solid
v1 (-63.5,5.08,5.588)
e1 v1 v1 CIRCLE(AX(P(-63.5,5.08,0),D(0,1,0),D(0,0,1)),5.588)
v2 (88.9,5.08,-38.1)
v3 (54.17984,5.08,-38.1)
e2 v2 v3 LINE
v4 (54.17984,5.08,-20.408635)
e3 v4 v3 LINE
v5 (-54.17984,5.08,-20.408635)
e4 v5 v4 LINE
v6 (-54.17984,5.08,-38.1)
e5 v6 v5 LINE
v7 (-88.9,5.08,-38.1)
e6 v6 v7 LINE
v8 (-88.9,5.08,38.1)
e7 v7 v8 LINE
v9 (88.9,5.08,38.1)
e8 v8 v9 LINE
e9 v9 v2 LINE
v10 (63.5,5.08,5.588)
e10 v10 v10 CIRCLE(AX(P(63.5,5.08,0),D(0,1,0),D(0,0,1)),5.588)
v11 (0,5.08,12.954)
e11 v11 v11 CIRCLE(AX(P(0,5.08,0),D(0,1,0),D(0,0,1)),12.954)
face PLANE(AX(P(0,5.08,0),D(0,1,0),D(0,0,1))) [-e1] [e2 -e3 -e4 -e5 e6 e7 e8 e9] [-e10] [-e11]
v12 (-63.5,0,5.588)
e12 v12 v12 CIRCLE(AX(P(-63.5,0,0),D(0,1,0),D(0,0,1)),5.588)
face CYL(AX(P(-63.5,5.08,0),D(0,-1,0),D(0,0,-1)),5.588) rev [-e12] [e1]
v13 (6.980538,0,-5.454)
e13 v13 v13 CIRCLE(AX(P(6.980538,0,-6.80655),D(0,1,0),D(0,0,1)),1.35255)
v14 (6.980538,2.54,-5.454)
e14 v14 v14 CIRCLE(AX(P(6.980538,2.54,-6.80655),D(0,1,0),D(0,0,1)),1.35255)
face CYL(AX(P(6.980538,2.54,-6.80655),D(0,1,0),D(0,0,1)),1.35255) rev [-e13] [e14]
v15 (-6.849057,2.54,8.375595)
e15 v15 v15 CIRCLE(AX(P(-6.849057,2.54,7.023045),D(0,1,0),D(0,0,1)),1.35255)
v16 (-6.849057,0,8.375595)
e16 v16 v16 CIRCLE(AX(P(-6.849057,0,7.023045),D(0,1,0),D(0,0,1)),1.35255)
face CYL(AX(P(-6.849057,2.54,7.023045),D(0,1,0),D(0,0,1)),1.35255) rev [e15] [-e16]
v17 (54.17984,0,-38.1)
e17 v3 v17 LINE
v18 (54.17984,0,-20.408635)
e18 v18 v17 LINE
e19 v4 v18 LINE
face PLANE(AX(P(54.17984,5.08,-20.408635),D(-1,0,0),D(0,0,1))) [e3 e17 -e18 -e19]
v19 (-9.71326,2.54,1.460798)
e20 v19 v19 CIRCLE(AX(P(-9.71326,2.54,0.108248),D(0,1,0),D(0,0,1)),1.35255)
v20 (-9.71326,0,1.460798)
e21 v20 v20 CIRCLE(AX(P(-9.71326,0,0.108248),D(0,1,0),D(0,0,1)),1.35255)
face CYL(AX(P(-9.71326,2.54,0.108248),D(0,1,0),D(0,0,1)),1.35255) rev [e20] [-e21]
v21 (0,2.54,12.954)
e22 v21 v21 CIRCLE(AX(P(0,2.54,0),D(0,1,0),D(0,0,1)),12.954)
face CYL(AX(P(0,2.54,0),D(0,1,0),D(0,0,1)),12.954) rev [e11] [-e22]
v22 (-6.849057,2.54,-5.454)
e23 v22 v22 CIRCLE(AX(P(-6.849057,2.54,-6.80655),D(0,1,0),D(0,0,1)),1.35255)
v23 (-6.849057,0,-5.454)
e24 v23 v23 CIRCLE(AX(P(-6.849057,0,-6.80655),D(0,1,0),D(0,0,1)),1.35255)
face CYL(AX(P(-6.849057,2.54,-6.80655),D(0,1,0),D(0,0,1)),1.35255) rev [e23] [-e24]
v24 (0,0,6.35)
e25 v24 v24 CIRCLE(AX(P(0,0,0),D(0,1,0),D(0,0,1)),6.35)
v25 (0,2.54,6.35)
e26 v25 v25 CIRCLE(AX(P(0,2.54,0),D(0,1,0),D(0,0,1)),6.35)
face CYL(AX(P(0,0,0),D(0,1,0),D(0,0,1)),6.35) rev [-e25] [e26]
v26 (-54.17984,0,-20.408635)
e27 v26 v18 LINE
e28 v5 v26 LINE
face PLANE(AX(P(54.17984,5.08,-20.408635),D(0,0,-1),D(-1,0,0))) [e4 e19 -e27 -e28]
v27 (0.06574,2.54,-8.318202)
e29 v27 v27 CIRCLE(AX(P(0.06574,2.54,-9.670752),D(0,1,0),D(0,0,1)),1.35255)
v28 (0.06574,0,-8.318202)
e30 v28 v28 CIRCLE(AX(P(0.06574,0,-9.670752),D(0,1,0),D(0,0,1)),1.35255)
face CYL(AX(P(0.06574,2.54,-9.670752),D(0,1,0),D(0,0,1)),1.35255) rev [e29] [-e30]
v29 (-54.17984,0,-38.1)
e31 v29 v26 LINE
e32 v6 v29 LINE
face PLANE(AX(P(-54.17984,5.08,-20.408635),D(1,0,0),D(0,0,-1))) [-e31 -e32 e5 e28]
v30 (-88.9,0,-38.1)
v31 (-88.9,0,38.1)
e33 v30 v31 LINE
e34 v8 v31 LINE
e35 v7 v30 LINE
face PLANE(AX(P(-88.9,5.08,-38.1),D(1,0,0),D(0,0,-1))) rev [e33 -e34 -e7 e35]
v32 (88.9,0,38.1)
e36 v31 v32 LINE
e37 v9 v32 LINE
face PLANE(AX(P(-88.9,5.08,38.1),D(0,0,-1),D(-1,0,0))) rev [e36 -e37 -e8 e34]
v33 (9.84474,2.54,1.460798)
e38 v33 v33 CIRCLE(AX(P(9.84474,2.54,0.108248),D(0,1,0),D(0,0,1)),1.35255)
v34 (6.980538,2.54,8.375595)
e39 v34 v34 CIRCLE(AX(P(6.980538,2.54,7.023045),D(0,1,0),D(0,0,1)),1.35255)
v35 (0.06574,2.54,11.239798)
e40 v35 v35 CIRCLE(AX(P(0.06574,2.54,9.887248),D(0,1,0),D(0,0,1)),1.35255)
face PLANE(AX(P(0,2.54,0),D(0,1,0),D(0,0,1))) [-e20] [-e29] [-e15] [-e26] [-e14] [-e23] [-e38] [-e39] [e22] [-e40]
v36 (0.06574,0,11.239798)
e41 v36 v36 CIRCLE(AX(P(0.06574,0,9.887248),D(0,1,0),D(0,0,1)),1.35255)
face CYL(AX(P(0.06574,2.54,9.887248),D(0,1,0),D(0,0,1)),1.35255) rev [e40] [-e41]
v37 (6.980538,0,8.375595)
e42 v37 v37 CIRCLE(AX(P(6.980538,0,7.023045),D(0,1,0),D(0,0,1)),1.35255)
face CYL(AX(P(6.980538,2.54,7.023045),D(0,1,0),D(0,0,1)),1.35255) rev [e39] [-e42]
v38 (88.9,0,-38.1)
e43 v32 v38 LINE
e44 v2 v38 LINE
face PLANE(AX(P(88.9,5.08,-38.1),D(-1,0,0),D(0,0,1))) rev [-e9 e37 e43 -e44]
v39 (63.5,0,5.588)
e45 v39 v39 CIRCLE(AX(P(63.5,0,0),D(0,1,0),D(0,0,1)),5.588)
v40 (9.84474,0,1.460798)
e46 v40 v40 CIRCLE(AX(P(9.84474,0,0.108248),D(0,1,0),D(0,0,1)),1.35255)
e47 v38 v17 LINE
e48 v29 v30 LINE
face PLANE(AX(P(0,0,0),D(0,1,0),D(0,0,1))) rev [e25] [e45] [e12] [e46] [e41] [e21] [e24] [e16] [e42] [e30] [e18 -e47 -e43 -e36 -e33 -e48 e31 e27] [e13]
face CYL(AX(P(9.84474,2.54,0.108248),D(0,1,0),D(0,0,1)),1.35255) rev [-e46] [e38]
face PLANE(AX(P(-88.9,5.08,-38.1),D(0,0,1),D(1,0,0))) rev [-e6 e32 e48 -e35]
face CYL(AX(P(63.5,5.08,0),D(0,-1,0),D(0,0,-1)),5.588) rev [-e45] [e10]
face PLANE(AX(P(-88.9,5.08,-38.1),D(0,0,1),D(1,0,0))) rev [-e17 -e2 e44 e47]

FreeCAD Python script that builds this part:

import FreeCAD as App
import Part
import Sketcher
Q = App.Units.Quantity


def add_polygon(sketch, points):
    """Adds a closed chain of lines whose ends are joined by coincident constraints."""
    first, n = sketch.GeometryCount, len(points)
    for a, b in zip(points, points[1:] + points[:1]):
        sketch.addGeometry(Part.LineSegment(App.Vector(*a, 0), App.Vector(*b, 0)), False)
    for i in range(n):
        sketch.addConstraint(Sketcher.Constraint("Coincident", first + i, 2, first + (i + 1) % n, 1))

doc = App.newDocument("Part")
body = doc.addObject("PartDesign::Body", "Body")

sketch1 = body.newObject("Sketcher::SketchObject", "Sketch")
sketch1.AttachmentSupport = (doc.getObject("XZ_Plane"), [""])
sketch1.MapMode = "FlatFace"
add_polygon(sketch1, [(-89, -38), (-89, 38), (89, 38), (89, -38)])
sketch1.addGeometry(Part.Circle(App.Vector(-64, 0, 0), App.Vector(0, 0, 1), 6), False)
sketch1.addGeometry(Part.Circle(App.Vector(64, 0, 0), App.Vector(0, 0, 1), 6), False)
sketch1.addConstraint([
    Sketcher.Constraint("Vertical", 0),
    Sketcher.Constraint("Horizontal", 1),
    Sketcher.Constraint("Vertical", 2),
    Sketcher.Constraint("Horizontal", 3),
    Sketcher.Constraint("Equal", 4, 5),
    Sketcher.Constraint("Symmetric", 4, 3, 5, 3, -1, 1),
    Sketcher.Constraint("Symmetric", 0, 2, 2, 2, -1, 1),
    Sketcher.Constraint("PointOnObject", 4, 3, -1),
    Sketcher.Constraint("Diameter", 4, Q("0.44 in")),
    Sketcher.Constraint("DistanceX", 1, 1, 1, 2, Q("7 in")),
    Sketcher.Constraint("DistanceY", 0, 1, 0, 2, Q("3 in")),
    Sketcher.Constraint("DistanceX", 4, 3, 5, 3, Q("5 in")),
])
pad1 = body.newObject("PartDesign::Pad", "Pad")
pad1.Profile = sketch1
pad1.Length = Q("0.2 in")
pad1.Reversed = True

sketch2 = body.newObject("Sketcher::SketchObject", "Sketch001")
sketch2.AttachmentSupport = (doc.getObject("XZ_Plane"), [""])
sketch2.MapMode = "FlatFace"
sketch2.AttachmentOffset = App.Placement(App.Vector(0, 0, -0.2 * 25.4), App.Rotation())
sketch2.addGeometry([
    Part.Circle(App.Vector(0, 0, 0), App.Vector(0, 0, 1), 13),
    Part.Circle(App.Vector(-6.8, 7, 0), App.Vector(0, 0, 1), 0.7),
    Part.Circle(App.Vector(0.1, 9.9, 0), App.Vector(0, 0, 1), 0.7),
    Part.Circle(App.Vector(7, 7, 0), App.Vector(0, 0, 1), 0.7),
    Part.Circle(App.Vector(-9.7, 0.1, 0), App.Vector(0, 0, 1), 0.7),
    Part.Circle(App.Vector(-6.8, -6.8, 0), App.Vector(0, 0, 1), 0.7),
    Part.Circle(App.Vector(9.8, 0.1, 0), App.Vector(0, 0, 1), 0.7),
    Part.Circle(App.Vector(0.1, -9.7, 0), App.Vector(0, 0, 1), 0.7),
    Part.Circle(App.Vector(7, -6.8, 0), App.Vector(0, 0, 1), 0.7),
], False)
sketch2.addConstraint([
    Sketcher.Constraint("Coincident", 0, 3, -1, 1),
    Sketcher.Constraint("Equal", 1, 2),
    Sketcher.Constraint("Equal", 2, 3),
    Sketcher.Constraint("Equal", 3, 4),
    Sketcher.Constraint("Equal", 4, 5),
    Sketcher.Constraint("Equal", 5, 6),
    Sketcher.Constraint("Equal", 6, 7),
    Sketcher.Constraint("Equal", 7, 8),
    Sketcher.Constraint("Horizontal", 1, 3, 3, 3),
    Sketcher.Constraint("Horizontal", 4, 3, 6, 3),
    Sketcher.Constraint("Horizontal", 5, 3, 8, 3),
    Sketcher.Constraint("Vertical", 1, 3, 5, 3),
    Sketcher.Constraint("Vertical", 2, 3, 7, 3),
    Sketcher.Constraint("Vertical", 3, 3, 8, 3),
    Sketcher.Constraint("Diameter", 0, Q("1.02 in")),
    Sketcher.Constraint("Diameter", 1, Q("1.4242 mm")),
    Sketcher.Constraint("DistanceX", 4, 3, 2, 3, Q("0.385 in")),
    Sketcher.Constraint("DistanceY", 4, 3, 2, 3, Q("0.385 in")),
    Sketcher.Constraint("DistanceX", 2, 3, 6, 3, Q("0.385 in")),
    Sketcher.Constraint("DistanceY", 7, 3, 4, 3, Q("0.385 in")),
    Sketcher.Constraint("DistanceX", -1, 1, 2, 3, Q("0.06574 mm")),
    Sketcher.Constraint("DistanceY", 5, 3, -1, 1, Q("6.80655 mm")),
    Sketcher.Constraint("DistanceX", 1, 3, -1, 1, Q("6.849057 mm")),
    Sketcher.Constraint("DistanceY", -1, 1, 1, 3, Q("7.023045 mm")),
    Sketcher.Constraint("DistanceY", -1, 1, 2, 3, Q("9.887248 mm")),
    Sketcher.Constraint("DistanceX", -1, 1, 3, 3, Q("6.980538 mm")),
])
pocket1 = body.newObject("PartDesign::Pocket", "Pocket")
pocket1.Profile = sketch2
pocket1.Length = Q("0.1 in")
pocket1.Reversed = True

sketch3 = body.newObject("Sketcher::SketchObject", "Sketch002")
sketch3.AttachmentSupport = (doc.getObject("XZ_Plane"), [""])
sketch3.MapMode = "FlatFace"
sketch3.AttachmentOffset = App.Placement(App.Vector(0, 0, -0.2 * 25.4), App.Rotation())
sketch3.addGeometry(Part.Circle(App.Vector(0, 0, 0), App.Vector(0, 0, 1), 6), False)
sketch3.addConstraint([
    Sketcher.Constraint("Coincident", 0, 3, -1, 1),
    Sketcher.Constraint("Diameter", 0, Q("0.5 in")),
])
pocket2 = body.newObject("PartDesign::Pocket", "Pocket001")
pocket2.Profile = sketch3
pocket2.Type = "ThroughAll"
pocket2.Reversed = True

sketch4 = body.newObject("Sketcher::SketchObject", "Sketch003")
sketch4.AttachmentSupport = (doc.getObject("XZ_Plane"), [""])
sketch4.MapMode = "FlatFace"
sketch4.AttachmentOffset = App.Placement(App.Vector(0, 0, -0.1 * 25.4), App.Rotation())
sketch4.addGeometry([
    Part.Circle(App.Vector(7, -6.8, 0), App.Vector(0, 0, 1), 1.4),
    Part.Circle(App.Vector(9.8, 0.1, 0), App.Vector(0, 0, 1), 1.4),
    Part.Circle(App.Vector(7, 7, 0), App.Vector(0, 0, 1), 1.4),
    Part.Circle(App.Vector(0.1, -9.7, 0), App.Vector(0, 0, 1), 1.4),
    Part.Circle(App.Vector(-6.8, -6.8, 0), App.Vector(0, 0, 1), 1.4),
    Part.Circle(App.Vector(-9.7, 0.1, 0), App.Vector(0, 0, 1), 1.4),
    Part.Circle(App.Vector(-6.8, 7, 0), App.Vector(0, 0, 1), 1.4),
    Part.Circle(App.Vector(0.1, 9.9, 0), App.Vector(0, 0, 1), 1.4),
], False)
sketch4.addConstraint([
    Sketcher.Constraint("Equal", 0, 1),
    Sketcher.Constraint("Equal", 1, 2),
    Sketcher.Constraint("Equal", 2, 3),
    Sketcher.Constraint("Equal", 3, 4),
    Sketcher.Constraint("Equal", 4, 5),
    Sketcher.Constraint("Equal", 5, 6),
    Sketcher.Constraint("Equal", 6, 7),
    Sketcher.Constraint("Horizontal", 0, 3, 4, 3),
    Sketcher.Constraint("Horizontal", 1, 3, 5, 3),
    Sketcher.Constraint("Horizontal", 2, 3, 6, 3),
    Sketcher.Constraint("Vertical", 0, 3, 2, 3),
    Sketcher.Constraint("Vertical", 4, 3, 6, 3),
    Sketcher.Constraint("Vertical", 3, 3, 7, 3),
    Sketcher.Constraint("Diameter", 0, Q("0.1065 in")),
    Sketcher.Constraint("DistanceX", 5, 3, 1, 3, Q("0.77 in")),
    Sketcher.Constraint("DistanceX", 3, 3, 1, 3, Q("0.385 in")),
    Sketcher.Constraint("DistanceY", 3, 3, 1, 3, Q("0.385 in")),
    Sketcher.Constraint("DistanceY", 1, 3, 7, 3, Q("0.385 in")),
    Sketcher.Constraint("DistanceY", 0, 3, -1, 1, Q("6.80655 mm")),
    Sketcher.Constraint("DistanceX", -1, 1, 1, 3, Q("9.84474 mm")),
    Sketcher.Constraint("DistanceX", -1, 1, 0, 3, Q("6.980538 mm")),
    Sketcher.Constraint("DistanceY", -1, 1, 1, 3, Q("0.108248 mm")),
    Sketcher.Constraint("DistanceY", -1, 1, 2, 3, Q("7.023045 mm")),
    Sketcher.Constraint("DistanceX", 4, 3, -1, 1, Q("6.849057 mm")),
])
doc.recompute()
hole = body.newObject("PartDesign::Hole", "Hole")
hole.Profile = sketch4
hole.ThreadType = "None"
hole.Diameter = Q("0.1065 in")
hole.DepthType = "ThroughAll"
hole.Reversed = True

sketch5 = body.newObject("Sketcher::SketchObject", "Sketch004")
sketch5.AttachmentSupport = (doc.getObject("XZ_Plane"), [""])
sketch5.MapMode = "FlatFace"
add_polygon(sketch5, [(-54, -38), (-54, -20), (54, -20), (54, -38)])
sketch5.addConstraint([
    Sketcher.Constraint("Vertical", 0),
    Sketcher.Constraint("Horizontal", 1),
    Sketcher.Constraint("Vertical", 2),
    Sketcher.Constraint("Horizontal", 3),
    Sketcher.Constraint("DistanceY", 2, 2, -1, 1, Q("1.5 in")),
    Sketcher.Constraint("DistanceX", 1, 1, 1, 2, Q("108.35968 mm")),
    Sketcher.Constraint("DistanceY", 0, 1, 0, 2, Q("17.691365 mm")),
    Sketcher.Constraint("DistanceX", 0, 2, -1, 1, Q("54.17984 mm")),
])
pocket3 = body.newObject("PartDesign::Pocket", "Pocket002")
pocket3.Profile = sketch5
pocket3.Length = Q("0.2 in")

doc.recompute()
